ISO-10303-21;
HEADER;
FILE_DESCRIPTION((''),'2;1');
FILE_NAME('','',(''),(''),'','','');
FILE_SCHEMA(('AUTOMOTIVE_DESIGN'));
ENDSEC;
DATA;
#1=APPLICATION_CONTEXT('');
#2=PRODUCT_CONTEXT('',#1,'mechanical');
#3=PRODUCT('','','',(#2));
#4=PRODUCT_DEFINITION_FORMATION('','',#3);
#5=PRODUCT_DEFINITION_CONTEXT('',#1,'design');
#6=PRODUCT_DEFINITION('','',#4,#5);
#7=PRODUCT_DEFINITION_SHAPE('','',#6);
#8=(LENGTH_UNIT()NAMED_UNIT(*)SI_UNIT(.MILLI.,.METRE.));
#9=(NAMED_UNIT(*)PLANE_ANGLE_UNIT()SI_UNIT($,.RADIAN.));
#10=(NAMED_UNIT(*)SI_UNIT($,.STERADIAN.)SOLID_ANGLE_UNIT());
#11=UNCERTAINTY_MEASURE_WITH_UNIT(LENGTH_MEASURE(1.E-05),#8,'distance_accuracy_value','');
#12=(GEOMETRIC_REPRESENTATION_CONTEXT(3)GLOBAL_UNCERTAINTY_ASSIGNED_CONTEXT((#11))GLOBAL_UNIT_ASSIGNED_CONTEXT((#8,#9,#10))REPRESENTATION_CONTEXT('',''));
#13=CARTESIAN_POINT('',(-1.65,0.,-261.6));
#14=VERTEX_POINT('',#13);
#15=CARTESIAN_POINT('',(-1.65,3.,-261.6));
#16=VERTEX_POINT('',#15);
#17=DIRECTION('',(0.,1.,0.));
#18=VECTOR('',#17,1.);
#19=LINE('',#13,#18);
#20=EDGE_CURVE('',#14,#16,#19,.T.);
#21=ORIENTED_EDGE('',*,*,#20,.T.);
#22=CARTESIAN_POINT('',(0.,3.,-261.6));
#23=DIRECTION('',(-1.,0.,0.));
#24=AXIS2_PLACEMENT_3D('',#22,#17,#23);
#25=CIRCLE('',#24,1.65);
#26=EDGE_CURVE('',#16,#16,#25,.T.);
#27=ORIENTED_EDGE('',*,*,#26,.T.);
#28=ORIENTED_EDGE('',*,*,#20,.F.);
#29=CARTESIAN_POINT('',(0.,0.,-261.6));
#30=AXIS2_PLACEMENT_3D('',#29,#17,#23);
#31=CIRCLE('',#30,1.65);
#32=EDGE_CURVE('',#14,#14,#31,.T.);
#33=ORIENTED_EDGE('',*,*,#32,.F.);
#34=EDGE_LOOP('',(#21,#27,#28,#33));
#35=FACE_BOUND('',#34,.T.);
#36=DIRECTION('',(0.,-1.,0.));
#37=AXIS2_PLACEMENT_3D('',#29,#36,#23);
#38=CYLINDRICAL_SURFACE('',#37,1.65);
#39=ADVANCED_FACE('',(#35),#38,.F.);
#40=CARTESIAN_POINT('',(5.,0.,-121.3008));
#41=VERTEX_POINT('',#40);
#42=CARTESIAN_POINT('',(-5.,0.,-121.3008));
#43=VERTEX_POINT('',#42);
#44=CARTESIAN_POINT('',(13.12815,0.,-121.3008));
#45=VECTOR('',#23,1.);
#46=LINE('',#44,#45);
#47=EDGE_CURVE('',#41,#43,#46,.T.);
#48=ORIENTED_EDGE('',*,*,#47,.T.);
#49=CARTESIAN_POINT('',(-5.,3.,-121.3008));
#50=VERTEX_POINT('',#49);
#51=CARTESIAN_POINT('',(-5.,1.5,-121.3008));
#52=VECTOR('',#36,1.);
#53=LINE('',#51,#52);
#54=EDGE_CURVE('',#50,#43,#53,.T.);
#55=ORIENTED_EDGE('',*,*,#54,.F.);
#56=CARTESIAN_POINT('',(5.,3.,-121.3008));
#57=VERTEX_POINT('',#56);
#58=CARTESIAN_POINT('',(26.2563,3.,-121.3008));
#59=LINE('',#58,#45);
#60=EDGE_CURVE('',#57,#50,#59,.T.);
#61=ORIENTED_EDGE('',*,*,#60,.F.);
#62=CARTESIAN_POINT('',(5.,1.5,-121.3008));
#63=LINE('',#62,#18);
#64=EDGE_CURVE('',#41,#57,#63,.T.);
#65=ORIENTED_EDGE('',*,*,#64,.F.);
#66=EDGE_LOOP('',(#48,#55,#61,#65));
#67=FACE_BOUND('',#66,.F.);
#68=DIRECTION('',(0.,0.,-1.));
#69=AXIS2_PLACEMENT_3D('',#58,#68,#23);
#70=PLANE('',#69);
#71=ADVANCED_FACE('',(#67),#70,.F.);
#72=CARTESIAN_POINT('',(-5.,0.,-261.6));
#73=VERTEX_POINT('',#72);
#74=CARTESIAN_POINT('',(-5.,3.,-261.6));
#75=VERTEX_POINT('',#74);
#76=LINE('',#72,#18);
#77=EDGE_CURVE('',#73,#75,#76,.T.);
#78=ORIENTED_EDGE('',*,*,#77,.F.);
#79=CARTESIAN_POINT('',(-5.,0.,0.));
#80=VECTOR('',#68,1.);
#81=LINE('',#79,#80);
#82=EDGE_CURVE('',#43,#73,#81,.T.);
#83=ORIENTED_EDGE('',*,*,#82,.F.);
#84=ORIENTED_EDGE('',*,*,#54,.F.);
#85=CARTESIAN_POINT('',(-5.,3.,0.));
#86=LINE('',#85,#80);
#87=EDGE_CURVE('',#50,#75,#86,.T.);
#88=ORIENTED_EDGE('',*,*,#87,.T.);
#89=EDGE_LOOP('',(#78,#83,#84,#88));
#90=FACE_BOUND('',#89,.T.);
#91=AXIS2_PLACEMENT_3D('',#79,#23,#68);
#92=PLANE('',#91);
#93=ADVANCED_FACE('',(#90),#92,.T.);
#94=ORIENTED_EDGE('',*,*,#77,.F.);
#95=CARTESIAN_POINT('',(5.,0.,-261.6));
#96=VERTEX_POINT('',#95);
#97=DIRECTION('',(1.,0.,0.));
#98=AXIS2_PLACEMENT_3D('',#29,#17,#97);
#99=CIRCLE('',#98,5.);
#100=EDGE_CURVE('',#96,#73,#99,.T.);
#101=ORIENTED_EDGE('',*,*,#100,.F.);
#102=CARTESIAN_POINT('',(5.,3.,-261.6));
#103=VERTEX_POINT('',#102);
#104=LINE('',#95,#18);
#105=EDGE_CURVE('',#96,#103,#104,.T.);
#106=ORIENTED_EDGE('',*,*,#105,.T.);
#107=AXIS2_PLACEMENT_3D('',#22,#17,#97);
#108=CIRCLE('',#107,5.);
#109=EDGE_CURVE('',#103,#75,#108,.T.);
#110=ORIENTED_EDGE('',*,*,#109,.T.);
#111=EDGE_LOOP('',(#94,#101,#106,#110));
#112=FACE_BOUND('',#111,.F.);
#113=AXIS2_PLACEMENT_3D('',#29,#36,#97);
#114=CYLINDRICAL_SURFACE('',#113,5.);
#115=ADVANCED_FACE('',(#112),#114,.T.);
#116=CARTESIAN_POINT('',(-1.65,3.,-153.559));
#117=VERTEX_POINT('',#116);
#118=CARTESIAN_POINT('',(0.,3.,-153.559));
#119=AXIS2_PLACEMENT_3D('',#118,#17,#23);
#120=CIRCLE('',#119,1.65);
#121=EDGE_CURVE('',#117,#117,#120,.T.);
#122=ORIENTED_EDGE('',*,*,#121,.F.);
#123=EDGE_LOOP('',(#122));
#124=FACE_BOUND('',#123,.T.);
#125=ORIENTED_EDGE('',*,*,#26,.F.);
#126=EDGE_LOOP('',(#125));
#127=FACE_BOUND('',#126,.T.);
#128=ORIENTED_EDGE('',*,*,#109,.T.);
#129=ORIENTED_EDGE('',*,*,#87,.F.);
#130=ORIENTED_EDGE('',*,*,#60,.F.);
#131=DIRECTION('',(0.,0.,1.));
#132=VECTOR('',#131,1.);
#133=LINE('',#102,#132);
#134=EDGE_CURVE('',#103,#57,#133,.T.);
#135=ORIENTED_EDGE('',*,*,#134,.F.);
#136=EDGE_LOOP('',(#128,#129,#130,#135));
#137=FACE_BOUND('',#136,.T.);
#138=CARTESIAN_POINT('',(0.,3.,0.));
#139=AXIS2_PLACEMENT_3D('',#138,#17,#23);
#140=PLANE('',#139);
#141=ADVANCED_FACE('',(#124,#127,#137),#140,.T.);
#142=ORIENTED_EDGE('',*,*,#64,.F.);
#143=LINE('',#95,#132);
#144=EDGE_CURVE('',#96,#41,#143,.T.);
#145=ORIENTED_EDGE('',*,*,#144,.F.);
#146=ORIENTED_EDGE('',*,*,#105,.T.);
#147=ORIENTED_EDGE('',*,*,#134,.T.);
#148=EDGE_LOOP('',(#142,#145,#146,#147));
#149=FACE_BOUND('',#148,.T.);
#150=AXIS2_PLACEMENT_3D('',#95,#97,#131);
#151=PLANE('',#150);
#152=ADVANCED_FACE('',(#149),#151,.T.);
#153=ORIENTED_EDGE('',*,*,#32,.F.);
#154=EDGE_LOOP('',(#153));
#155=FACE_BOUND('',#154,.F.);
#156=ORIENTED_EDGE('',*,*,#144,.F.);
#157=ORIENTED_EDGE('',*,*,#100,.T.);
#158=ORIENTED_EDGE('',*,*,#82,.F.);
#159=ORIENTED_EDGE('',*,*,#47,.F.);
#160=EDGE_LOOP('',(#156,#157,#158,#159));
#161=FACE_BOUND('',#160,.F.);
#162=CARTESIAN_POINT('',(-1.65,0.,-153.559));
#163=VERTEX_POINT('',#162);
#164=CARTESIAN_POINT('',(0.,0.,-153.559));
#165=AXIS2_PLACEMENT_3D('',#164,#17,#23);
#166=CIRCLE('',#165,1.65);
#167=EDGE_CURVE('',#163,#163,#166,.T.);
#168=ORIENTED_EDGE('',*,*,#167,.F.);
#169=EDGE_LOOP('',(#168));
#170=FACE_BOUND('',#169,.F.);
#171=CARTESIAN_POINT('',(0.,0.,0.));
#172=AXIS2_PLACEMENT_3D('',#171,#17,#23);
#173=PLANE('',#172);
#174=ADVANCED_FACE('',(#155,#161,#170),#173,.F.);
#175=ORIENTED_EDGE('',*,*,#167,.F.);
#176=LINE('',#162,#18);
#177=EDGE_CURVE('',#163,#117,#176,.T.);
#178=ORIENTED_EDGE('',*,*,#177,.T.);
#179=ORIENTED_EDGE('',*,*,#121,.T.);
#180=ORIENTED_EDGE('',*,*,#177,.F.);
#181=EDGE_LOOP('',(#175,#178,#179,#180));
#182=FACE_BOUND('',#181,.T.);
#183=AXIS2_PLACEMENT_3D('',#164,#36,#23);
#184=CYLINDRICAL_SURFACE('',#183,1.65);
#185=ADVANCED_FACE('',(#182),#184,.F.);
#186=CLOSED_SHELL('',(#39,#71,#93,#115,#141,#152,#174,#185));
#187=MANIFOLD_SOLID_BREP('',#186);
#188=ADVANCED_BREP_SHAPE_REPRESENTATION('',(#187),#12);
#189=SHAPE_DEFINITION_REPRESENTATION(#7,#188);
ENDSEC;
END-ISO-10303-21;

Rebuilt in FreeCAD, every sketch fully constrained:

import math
import FreeCAD as App
import Part
import Sketcher

V = App.Vector

doc = App.newDocument("Part")
body = doc.addObject("PartDesign::Body", "Body")

sketch1 = doc.addObject("Sketcher::SketchObject", "Sketch")
body.addObject(sketch1)
sketch1.AttachmentSupport = (doc.XZ_Plane, [""])
sketch1.MapMode = "FlatFace"
sketch1.addGeometry(Part.LineSegment(V(-5, -261.6, 0), V(-5, 0, 0)), False)
sketch1.addGeometry(Part.ArcOfCircle(Part.Circle(V(0, 0, 0), V(0, 0, 1), 5), math.radians(0), math.radians(180)), False)
sketch1.addGeometry(Part.LineSegment(V(5, 0, 0), V(5, -261.6, 0)), False)
sketch1.addGeometry(Part.ArcOfCircle(Part.Circle(V(0, -261.6, 0), V(0, 0, 1), 5), math.radians(180), math.radians(360)), False)
sketch1.addGeometry(Part.Circle(V(0, -261.6, 0), V(0, 0, 1), 1.65), False)
sketch1.addGeometry(Part.Circle(V(0, -153.559, 0), V(0, 0, 1), 1.65), False)
sketch1.addGeometry(Part.Circle(V(0, 0, 0), V(0, 0, 1), 1.65), False)
sketch1.addConstraint(Sketcher.Constraint("Tangent", 0, 2, 1, 2))
sketch1.addConstraint(Sketcher.Constraint("Tangent", 1, 1, 2, 1))
sketch1.addConstraint(Sketcher.Constraint("Tangent", 2, 2, 3, 2))
sketch1.addConstraint(Sketcher.Constraint("Tangent", 3, 1, 0, 1))
sketch1.addConstraint(Sketcher.Constraint("Vertical", 0))
sketch1.addConstraint(Sketcher.Constraint("Vertical", 2))
sketch1.addConstraint(Sketcher.Constraint("Coincident", 1, 3, -1, 1))
sketch1.addConstraint(Sketcher.Constraint("Coincident", 6, 3, -1, 1))
sketch1.addConstraint(Sketcher.Constraint("Coincident", 4, 3, 3, 3))
sketch1.addConstraint(Sketcher.Constraint("Equal", 4, 5))
sketch1.addConstraint(Sketcher.Constraint("Equal", 5, 6))
sketch1.addConstraint(Sketcher.Constraint("PointOnObject", 5, 3, -2))
sketch1.addConstraint(Sketcher.Constraint("Radius", 1, 5.0))
sketch1.addConstraint(Sketcher.Constraint("Diameter", 4, 3.3))
sketch1.addConstraint(Sketcher.Constraint("DistanceY", 0, 1, 0, 2, 261.6))
sketch1.addConstraint(Sketcher.Constraint("DistanceY", 5, 3, -1, 1, 153.559))
pad1 = doc.addObject("PartDesign::Pad", "Pad")
body.addObject(pad1)
pad1.Profile = sketch1
pad1.Length = 3
pad1.Reversed = True

sketch2 = doc.addObject("Sketcher::SketchObject", "Sketch001")
body.addObject(sketch2)
sketch2.AttachmentSupport = (doc.XZ_Plane, [""])
sketch2.MapMode = "FlatFace"
sketch2.AttachmentOffset = App.Placement(V(0, 0, -3), App.Rotation())
sketch2.addGeometry(Part.LineSegment(V(155.5228, -357.0257, 0), V(-103.4002, -357.0257, 0)), False)
sketch2.addGeometry(Part.LineSegment(V(-103.4002, -357.0257, 0), V(-103.4002, 67.8162, 0)), False)
sketch2.addGeometry(Part.LineSegment(V(-103.4002, 67.8162, 0), V(155.5228, 67.8162, 0)), False)
sketch2.addGeometry(Part.LineSegment(V(155.5228, 67.8162, 0), V(155.5228, -357.0257, 0)), False)
sketch2.addGeometry(Part.LineSegment(V(-22.4574, -121.3008, 0), V(-22.4574, -275.926, 0)), False)
sketch2.addGeometry(Part.LineSegment(V(-22.4574, -275.926, 0), V(26.2563, -275.926, 0)), False)
sketch2.addGeometry(Part.LineSegment(V(26.2563, -275.926, 0), V(26.2563, -121.3008, 0)), False)
sketch2.addGeometry(Part.LineSegment(V(26.2563, -121.3008, 0), V(-22.4574, -121.3008, 0)), False)
sketch2.addConstraint(Sketcher.Constraint("Coincident", 0, 2, 1, 1))
sketch2.addConstraint(Sketcher.Constraint("Coincident", 1, 2, 2, 1))
sketch2.addConstraint(Sketcher.Constraint("Coincident", 2, 2, 3, 1))
sketch2.addConstraint(Sketcher.Constraint("Coincident", 3, 2, 0, 1))
sketch2.addConstraint(Sketcher.Constraint("Coincident", 4, 2, 5, 1))
sketch2.addConstraint(Sketcher.Constraint("Coincident", 5, 2, 6, 1))
sketch2.addConstraint(Sketcher.Constraint("Coincident", 6, 2, 7, 1))
sketch2.addConstraint(Sketcher.Constraint("Coincident", 7, 2, 4, 1))
sketch2.addConstraint(Sketcher.Constraint("Horizontal", 0))
sketch2.addConstraint(Sketcher.Constraint("Vertical", 1))
sketch2.addConstraint(Sketcher.Constraint("Horizontal", 2))
sketch2.addConstraint(Sketcher.Constraint("Vertical", 3))
sketch2.addConstraint(Sketcher.Constraint("Vertical", 4))
sketch2.addConstraint(Sketcher.Constraint("Horizontal", 5))
sketch2.addConstraint(Sketcher.Constraint("Vertical", 6))
sketch2.addConstraint(Sketcher.Constraint("Horizontal", 7))
sketch2.addConstraint(Sketcher.Constraint("DistanceX", 0, 2, 0, 1, 258.923))
sketch2.addConstraint(Sketcher.Constraint("DistanceY", 1, 1, 1, 2, 424.842))
sketch2.addConstraint(Sketcher.Constraint("DistanceX", 5, 1, 5, 2, 48.7137))
sketch2.addConstraint(Sketcher.Constraint("DistanceY", 4, 2, 4, 1, 154.6252))
sketch2.addConstraint(Sketcher.Constraint("DistanceY", 4, 2, -1, 1, 275.926))
sketch2.addConstraint(Sketcher.Constraint("DistanceY", 6, 2, 2, 2, 189.117))
sketch2.addConstraint(Sketcher.Constraint("DistanceX", 0, 2, -1, 1, 103.4002))
sketch2.addConstraint(Sketcher.Constraint("DistanceX", 4, 2, -1, 1, 22.4574))
pocket1 = doc.addObject("PartDesign::Pocket", "Pocket")
body.addObject(pocket1)
pocket1.Profile = sketch2
pocket1.Length = 100
pocket1.Reversed = True

doc.recompute()
